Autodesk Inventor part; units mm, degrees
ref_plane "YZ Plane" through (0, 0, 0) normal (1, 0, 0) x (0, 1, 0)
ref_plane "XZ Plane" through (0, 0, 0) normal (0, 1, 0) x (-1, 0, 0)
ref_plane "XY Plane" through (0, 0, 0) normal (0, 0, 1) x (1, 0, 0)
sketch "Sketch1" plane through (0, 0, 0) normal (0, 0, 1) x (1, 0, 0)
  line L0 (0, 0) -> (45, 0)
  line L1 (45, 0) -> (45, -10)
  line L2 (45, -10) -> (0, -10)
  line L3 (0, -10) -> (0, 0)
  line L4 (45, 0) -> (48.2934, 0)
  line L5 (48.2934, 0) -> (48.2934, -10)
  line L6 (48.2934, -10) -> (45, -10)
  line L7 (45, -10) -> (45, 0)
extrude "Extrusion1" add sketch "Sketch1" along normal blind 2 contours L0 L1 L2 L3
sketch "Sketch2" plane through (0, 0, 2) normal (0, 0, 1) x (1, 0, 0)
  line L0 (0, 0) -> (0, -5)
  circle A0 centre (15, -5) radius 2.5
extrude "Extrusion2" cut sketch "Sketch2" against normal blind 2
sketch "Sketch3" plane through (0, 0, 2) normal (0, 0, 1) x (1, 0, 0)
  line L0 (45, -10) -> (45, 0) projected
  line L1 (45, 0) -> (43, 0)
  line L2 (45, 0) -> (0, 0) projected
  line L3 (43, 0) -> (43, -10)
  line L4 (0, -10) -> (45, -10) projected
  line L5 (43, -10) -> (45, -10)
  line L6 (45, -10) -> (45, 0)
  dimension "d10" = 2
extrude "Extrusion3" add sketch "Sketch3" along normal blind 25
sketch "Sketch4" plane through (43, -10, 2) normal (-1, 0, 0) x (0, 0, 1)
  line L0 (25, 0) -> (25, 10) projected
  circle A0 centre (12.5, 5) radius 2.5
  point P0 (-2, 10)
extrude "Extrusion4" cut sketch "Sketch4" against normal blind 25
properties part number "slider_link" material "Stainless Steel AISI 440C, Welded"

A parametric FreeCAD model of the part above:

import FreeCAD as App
import Part
import Sketcher

V = App.Vector


def add_polygon(sketch, points):
    """Adds a closed chain of lines whose ends are joined by coincident constraints."""
    first, n = sketch.GeometryCount, len(points)
    for a, b in zip(points, points[1:] + points[:1]):
        sketch.addGeometry(Part.LineSegment(App.Vector(*a, 0), App.Vector(*b, 0)), False)
    for i in range(n):
        sketch.addConstraint(Sketcher.Constraint("Coincident", first + i, 2, first + (i + 1) % n, 1))

doc = App.newDocument("Part")
body = doc.addObject("PartDesign::Body", "Body")

# Sketch on XY plane
sketch1 = body.newObject("Sketcher::SketchObject", "Sketch")
sketch1.AttachmentSupport = (doc.getObject("XY_Plane"), [""])
sketch1.MapMode = "FlatFace"
add_polygon(sketch1, [(45, 0), (0, 0), (0, -10), (45, -10)])  # lines 0-3
sketch1.addConstraint([
    Sketcher.Constraint("Horizontal", 0),
    Sketcher.Constraint("Vertical", 1),
    Sketcher.Constraint("Horizontal", 2),
    Sketcher.Constraint("Vertical", 3),
    Sketcher.Constraint("Coincident", 0, 2, -1, 1),
    Sketcher.Constraint("DistanceX", 0, 2, 0, 1, 45.0),
    Sketcher.Constraint("DistanceY", 1, 2, 1, 1, 10.0),
])
pad1 = body.newObject("PartDesign::Pad", "Pad")
pad1.Profile = sketch1
pad1.Length = 2

# Sketch on XY plane
sketch2 = body.newObject("Sketcher::SketchObject", "Sketch001")
sketch2.AttachmentSupport = (doc.getObject("XY_Plane"), [""])
sketch2.MapMode = "FlatFace"
sketch2.AttachmentOffset = App.Placement(V(0, 0, 2), App.Rotation())
sketch2.addGeometry(Part.Circle(V(15, -5, 0), V(0, 0, 1), 2.5), False)
sketch2.addConstraint([
    Sketcher.Constraint("Diameter", 0, 5.0),
    Sketcher.Constraint("DistanceX", -1, 1, 0, 3, 15.0),
    Sketcher.Constraint("DistanceY", 0, 3, -1, 1, 5.0),
])
pocket1 = body.newObject("PartDesign::Pocket", "Pocket")
pocket1.Profile = sketch2
pocket1.Length = 2

# Sketch on XY plane
sketch3 = body.newObject("Sketcher::SketchObject", "Sketch002")
sketch3.AttachmentSupport = (doc.getObject("XY_Plane"), [""])
sketch3.MapMode = "FlatFace"
sketch3.AttachmentOffset = App.Placement(V(0, 0, 2), App.Rotation())
add_polygon(sketch3, [(43, -10), (45, -10), (45, 0), (43, 0)])  # lines 0-3
sketch3.addConstraint([
    Sketcher.Constraint("Horizontal", 0),
    Sketcher.Constraint("Vertical", 1),
    Sketcher.Constraint("Horizontal", 2),
    Sketcher.Constraint("Vertical", 3),
    Sketcher.Constraint("PointOnObject", 1, 2, -1),
    Sketcher.Constraint("DistanceX", 0, 1, 0, 2, 2.0),
    Sketcher.Constraint("DistanceY", 1, 1, 1, 2, 10.0),
    Sketcher.Constraint("DistanceX", -1, 1, 0, 2, 45.0),
])
pad2 = body.newObject("PartDesign::Pad", "Pad001")
pad2.Profile = sketch3
pad2.Length = 25

# Sketch on YZ plane
sketch4 = body.newObject("Sketcher::SketchObject", "Sketch003")
sketch4.AttachmentSupport = (doc.getObject("YZ_Plane"), [""])
sketch4.MapMode = "FlatFace"
sketch4.AttachmentOffset = App.Placement(V(0, 0, 43), App.Rotation())
sketch4.addGeometry(Part.Circle(V(-5, 14.5, 0), V(0, 0, 1), 2.5), False)
sketch4.addConstraint([
    Sketcher.Constraint("Diameter", 0, 5.0),
    Sketcher.Constraint("DistanceX", 0, 3, -1, 1, 5.0),
    Sketcher.Constraint("DistanceY", -1, 1, 0, 3, 14.5),
])
pocket2 = body.newObject("PartDesign::Pocket", "Pocket001")
pocket2.Profile = sketch4
pocket2.Length = 25
pocket2.Reversed = True

doc.recompute()
